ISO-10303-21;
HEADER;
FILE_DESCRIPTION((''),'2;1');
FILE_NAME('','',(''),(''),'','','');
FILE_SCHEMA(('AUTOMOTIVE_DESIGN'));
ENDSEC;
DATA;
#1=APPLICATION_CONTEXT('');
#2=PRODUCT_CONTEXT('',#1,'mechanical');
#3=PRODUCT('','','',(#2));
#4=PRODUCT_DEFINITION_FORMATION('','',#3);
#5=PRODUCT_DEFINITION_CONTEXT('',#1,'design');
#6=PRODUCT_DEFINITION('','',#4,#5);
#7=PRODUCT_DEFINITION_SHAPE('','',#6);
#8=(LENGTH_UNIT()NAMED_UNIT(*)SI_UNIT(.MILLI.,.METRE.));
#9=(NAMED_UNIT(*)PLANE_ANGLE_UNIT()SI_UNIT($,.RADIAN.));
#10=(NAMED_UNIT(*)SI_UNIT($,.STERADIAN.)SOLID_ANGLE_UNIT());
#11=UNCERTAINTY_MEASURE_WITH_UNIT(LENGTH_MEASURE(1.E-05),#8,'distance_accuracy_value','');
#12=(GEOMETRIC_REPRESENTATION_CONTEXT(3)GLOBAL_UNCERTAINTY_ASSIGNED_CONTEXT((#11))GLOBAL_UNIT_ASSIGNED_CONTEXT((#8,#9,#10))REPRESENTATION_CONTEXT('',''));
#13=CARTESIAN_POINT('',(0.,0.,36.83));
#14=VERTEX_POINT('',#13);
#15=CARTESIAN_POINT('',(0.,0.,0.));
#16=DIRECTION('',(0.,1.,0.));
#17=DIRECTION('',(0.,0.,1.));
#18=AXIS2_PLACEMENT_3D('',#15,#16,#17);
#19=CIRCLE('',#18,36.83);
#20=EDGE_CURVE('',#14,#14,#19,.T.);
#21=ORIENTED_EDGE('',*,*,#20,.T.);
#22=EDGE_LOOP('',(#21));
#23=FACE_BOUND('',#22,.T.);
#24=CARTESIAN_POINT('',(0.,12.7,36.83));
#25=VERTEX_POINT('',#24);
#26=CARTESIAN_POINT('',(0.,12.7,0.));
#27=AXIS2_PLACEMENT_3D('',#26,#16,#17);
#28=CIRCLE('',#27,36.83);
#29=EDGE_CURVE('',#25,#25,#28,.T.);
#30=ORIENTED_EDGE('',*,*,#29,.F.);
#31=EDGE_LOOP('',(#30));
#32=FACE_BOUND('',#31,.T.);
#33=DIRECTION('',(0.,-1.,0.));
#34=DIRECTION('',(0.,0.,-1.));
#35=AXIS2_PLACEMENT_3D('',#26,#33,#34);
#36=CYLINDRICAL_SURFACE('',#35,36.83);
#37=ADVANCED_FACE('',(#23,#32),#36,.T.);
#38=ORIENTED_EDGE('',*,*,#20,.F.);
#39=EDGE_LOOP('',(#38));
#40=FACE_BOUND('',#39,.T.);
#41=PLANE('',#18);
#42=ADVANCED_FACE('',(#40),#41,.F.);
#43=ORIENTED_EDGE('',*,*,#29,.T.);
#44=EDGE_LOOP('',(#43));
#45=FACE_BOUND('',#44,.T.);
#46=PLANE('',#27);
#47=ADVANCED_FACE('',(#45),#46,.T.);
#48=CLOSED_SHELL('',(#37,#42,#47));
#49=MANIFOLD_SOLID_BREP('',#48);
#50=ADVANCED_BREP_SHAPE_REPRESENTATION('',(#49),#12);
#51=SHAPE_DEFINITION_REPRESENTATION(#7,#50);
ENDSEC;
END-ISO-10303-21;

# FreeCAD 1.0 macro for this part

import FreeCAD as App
import Part
import Sketcher
from FreeCAD import Vector
Q = App.Units.Quantity

doc = App.newDocument("Part")
body = doc.addObject("PartDesign::Body", "Body")

sketch1 = body.newObject("Sketcher::SketchObject", "Sketch")
sketch1.AttachmentSupport = (doc.getObject("XZ_Plane"), [""])
sketch1.MapMode = "FlatFace"
sketch1.addGeometry(Part.Circle(Vector(0, 0, 0), Vector(0, 0, 1), 37), False)
sketch1.addConstraint([
    Sketcher.Constraint("Coincident", 0, 3, -1, 1),
    Sketcher.Constraint("Diameter", 0, Q("2.9 in")),
])
pad1 = body.newObject("PartDesign::Pad", "Pad")
pad1.Profile = sketch1
pad1.Length = Q("0.5 in")
pad1.Reversed = True

doc.recompute()
